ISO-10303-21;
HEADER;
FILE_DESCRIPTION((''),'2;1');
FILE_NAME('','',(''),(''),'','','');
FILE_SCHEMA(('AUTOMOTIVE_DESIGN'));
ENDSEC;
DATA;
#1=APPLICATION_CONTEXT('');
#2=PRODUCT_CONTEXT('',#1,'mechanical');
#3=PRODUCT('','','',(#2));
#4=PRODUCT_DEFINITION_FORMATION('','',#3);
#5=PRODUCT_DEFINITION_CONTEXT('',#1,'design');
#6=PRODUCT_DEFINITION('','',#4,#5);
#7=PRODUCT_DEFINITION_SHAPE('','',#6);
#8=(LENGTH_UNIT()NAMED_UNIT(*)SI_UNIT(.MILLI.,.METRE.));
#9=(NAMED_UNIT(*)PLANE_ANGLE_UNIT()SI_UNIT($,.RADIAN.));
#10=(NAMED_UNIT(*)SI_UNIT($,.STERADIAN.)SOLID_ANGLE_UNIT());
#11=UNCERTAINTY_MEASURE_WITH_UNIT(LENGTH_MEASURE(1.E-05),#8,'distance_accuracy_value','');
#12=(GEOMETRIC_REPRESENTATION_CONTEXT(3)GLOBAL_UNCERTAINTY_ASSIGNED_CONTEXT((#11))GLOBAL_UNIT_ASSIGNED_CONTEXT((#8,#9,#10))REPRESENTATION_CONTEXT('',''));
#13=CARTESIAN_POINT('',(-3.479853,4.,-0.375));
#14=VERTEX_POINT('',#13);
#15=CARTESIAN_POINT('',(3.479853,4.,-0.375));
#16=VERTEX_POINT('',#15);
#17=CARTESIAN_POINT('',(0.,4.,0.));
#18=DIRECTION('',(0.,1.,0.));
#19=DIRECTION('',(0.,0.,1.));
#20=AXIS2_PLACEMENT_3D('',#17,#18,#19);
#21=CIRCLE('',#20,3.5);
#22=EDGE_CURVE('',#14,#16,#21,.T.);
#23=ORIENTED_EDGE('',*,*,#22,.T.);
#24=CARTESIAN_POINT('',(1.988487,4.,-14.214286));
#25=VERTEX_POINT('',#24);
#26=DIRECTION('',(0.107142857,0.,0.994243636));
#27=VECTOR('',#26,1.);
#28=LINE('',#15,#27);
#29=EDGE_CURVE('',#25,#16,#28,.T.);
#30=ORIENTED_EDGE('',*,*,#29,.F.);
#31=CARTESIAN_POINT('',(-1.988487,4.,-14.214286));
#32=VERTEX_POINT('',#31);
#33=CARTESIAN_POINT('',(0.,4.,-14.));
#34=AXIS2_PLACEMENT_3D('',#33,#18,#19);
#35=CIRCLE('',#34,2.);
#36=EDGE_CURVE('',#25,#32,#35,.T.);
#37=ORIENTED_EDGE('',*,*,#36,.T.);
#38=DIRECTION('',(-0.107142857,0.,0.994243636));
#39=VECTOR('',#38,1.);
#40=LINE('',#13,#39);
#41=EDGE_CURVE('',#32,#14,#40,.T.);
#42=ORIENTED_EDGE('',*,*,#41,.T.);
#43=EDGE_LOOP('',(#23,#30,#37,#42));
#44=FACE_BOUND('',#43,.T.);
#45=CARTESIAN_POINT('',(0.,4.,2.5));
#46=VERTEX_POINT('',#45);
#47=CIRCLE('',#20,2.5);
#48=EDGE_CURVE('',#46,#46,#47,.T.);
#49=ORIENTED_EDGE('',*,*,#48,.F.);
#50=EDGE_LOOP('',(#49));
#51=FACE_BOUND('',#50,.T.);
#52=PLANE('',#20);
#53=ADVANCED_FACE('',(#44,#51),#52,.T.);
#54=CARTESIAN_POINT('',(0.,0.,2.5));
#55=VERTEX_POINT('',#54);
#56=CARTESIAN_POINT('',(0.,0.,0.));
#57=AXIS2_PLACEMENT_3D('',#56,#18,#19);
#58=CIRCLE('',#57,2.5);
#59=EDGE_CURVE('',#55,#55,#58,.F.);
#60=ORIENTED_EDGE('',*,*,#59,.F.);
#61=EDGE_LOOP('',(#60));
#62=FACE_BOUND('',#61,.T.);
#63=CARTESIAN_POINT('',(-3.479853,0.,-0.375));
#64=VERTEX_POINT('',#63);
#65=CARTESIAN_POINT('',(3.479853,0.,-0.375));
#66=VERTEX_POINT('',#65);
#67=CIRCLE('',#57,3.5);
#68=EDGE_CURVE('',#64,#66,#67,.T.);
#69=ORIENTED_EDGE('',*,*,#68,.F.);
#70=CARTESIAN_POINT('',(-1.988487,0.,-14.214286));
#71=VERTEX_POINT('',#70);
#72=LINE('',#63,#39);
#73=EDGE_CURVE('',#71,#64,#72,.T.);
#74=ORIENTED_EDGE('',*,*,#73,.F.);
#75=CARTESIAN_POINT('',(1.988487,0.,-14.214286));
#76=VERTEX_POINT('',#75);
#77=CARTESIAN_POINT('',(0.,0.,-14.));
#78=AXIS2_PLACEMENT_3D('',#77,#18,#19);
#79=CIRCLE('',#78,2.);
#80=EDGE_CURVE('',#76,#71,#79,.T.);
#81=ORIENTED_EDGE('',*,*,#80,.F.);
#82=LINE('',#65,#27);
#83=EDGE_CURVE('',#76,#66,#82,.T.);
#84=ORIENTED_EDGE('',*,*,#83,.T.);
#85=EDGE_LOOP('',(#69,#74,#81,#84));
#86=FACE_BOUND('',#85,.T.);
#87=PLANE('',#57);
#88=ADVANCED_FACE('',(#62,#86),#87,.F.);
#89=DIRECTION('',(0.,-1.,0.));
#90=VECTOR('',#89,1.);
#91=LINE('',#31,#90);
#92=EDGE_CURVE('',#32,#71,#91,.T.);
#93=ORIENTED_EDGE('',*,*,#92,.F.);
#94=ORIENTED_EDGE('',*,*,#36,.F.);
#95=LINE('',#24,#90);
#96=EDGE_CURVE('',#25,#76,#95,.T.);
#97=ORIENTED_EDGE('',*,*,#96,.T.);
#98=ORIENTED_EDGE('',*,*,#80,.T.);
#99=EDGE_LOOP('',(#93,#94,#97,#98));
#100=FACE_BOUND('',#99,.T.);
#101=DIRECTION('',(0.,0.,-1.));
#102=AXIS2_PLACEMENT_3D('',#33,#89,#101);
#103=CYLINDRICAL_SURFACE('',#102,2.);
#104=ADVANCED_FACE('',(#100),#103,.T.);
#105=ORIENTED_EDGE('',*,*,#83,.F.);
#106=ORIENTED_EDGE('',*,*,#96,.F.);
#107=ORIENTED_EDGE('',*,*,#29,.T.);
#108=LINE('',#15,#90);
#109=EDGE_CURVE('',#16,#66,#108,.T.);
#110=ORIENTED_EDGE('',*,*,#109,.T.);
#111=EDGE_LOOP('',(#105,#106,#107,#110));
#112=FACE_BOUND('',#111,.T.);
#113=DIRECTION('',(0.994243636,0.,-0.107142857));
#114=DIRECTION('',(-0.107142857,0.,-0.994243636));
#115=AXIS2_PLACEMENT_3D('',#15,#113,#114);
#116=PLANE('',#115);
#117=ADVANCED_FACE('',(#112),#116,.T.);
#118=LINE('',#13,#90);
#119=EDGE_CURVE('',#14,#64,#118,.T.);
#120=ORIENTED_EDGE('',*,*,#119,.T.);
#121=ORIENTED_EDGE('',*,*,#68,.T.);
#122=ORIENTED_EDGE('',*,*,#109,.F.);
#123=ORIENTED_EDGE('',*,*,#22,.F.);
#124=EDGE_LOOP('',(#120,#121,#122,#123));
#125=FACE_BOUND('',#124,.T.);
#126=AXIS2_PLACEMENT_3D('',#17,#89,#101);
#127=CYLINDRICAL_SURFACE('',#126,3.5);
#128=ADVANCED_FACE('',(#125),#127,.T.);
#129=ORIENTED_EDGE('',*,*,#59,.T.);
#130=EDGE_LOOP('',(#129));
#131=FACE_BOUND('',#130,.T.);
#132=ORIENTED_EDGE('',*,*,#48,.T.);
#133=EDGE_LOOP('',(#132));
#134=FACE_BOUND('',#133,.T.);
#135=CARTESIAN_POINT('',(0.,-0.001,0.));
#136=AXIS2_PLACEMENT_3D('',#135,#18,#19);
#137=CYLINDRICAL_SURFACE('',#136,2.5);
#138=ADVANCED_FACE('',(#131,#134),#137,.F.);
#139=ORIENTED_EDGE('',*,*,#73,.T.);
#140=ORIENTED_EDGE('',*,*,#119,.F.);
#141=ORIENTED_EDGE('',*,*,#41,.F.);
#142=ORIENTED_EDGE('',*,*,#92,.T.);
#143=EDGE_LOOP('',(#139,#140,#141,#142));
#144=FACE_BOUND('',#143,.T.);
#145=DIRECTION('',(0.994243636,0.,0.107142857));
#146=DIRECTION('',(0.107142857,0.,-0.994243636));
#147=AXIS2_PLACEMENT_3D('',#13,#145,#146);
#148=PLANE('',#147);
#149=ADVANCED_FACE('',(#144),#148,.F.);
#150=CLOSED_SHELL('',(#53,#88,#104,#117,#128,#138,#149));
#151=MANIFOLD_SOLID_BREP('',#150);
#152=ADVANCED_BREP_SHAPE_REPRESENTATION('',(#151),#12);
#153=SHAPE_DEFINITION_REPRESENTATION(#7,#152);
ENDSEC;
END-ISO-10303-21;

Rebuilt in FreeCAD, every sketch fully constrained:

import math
import FreeCAD as App
import Part
import Sketcher
Q = App.Units.Quantity

doc = App.newDocument("Part")
params = doc.addObject("Spreadsheet::Sheet", "Params")
for row, (alias, value) in enumerate([
    ("sketch1_radius", "2 mm"),
    ("sketch1_radius2", "3.5 mm"),
    ("pad1_length", "4 mm"),
    ("sketch2_diameter", "5 mm"),
], start=1):
    params.set(f"A{row}", alias)
    params.set(f"B{row}", "=" + value)
    params.setAlias(f"B{row}", alias)

body = doc.addObject("PartDesign::Body", "Body")

sketch1 = doc.addObject("Sketcher::SketchObject", "Sketch")
body.addObject(sketch1)
sketch1.AttachmentSupport = (doc.XZ_Plane, [""])
sketch1.MapMode = "FlatFace"
sketch1.addGeometry(Part.LineSegment(App.Vector(3.5, -0.4, 0), App.Vector(2, -14.2, 0)), False)
sketch1.addGeometry(Part.ArcOfCircle(Part.Circle(App.Vector(0, -14, 0), App.Vector(0, 0, 1), 2), math.radians(-174), math.radians(-6)), False)
sketch1.addGeometry(Part.LineSegment(App.Vector(-2, -14.2, 0), App.Vector(-3.5, -0.4, 0)), False)
sketch1.addGeometry(Part.ArcOfCircle(Part.Circle(App.Vector(0, 0, 0), App.Vector(0, 0, 1), 3.5), math.radians(-6), math.radians(186)), False)
sketch1.addConstraint(Sketcher.Constraint("Tangent", 0, 2, 1, 2))
sketch1.addConstraint(Sketcher.Constraint("Tangent", 1, 1, 2, 1))
sketch1.addConstraint(Sketcher.Constraint("Tangent", 2, 2, 3, 2))
sketch1.addConstraint(Sketcher.Constraint("Tangent", 3, 1, 0, 1))
sketch1.addConstraint(Sketcher.Constraint("Coincident", 3, 3, -1, 1))
sketch1.addConstraint(Sketcher.Constraint("PointOnObject", 1, 3, -2))
sketch1.addConstraint(Sketcher.Constraint("Radius", 1, Q("2 mm")))
sketch1.addConstraint(Sketcher.Constraint("Radius", 3, Q("3.5 mm")))
sketch1.addConstraint(Sketcher.Constraint("DistanceY", 1, 3, -1, 1, Q("14 mm")))
sketch1.setExpression("Constraints[6]", "Params.sketch1_radius")
sketch1.setExpression("Constraints[7]", "Params.sketch1_radius2")
pad1 = doc.addObject("PartDesign::Pad", "Pad")
body.addObject(pad1)
pad1.Profile = sketch1
pad1.setExpression("Length", "Params.pad1_length")
pad1.Reversed = True

sketch2 = doc.addObject("Sketcher::SketchObject", "Sketch001")
body.addObject(sketch2)
sketch2.AttachmentSupport = (doc.XZ_Plane, [""])
sketch2.MapMode = "FlatFace"
sketch2.AttachmentOffset = App.Placement(App.Vector(0, 0, -4), App.Rotation())
sketch2.addGeometry(Part.Circle(App.Vector(0, 0, 0), App.Vector(0, 0, 1), 2.5), False)
sketch2.addConstraint(Sketcher.Constraint("Coincident", 0, 3, -1, 1))
sketch2.addConstraint(Sketcher.Constraint("Diameter", 0, Q("5 mm")))
sketch2.setExpression("Constraints[1]", "Params.sketch2_diameter")
pocket1 = doc.addObject("PartDesign::Pocket", "Pocket")
body.addObject(pocket1)
pocket1.Profile = sketch2
pocket1.Type = "UpToFirst"
pocket1.Reversed = True

doc.recompute()
